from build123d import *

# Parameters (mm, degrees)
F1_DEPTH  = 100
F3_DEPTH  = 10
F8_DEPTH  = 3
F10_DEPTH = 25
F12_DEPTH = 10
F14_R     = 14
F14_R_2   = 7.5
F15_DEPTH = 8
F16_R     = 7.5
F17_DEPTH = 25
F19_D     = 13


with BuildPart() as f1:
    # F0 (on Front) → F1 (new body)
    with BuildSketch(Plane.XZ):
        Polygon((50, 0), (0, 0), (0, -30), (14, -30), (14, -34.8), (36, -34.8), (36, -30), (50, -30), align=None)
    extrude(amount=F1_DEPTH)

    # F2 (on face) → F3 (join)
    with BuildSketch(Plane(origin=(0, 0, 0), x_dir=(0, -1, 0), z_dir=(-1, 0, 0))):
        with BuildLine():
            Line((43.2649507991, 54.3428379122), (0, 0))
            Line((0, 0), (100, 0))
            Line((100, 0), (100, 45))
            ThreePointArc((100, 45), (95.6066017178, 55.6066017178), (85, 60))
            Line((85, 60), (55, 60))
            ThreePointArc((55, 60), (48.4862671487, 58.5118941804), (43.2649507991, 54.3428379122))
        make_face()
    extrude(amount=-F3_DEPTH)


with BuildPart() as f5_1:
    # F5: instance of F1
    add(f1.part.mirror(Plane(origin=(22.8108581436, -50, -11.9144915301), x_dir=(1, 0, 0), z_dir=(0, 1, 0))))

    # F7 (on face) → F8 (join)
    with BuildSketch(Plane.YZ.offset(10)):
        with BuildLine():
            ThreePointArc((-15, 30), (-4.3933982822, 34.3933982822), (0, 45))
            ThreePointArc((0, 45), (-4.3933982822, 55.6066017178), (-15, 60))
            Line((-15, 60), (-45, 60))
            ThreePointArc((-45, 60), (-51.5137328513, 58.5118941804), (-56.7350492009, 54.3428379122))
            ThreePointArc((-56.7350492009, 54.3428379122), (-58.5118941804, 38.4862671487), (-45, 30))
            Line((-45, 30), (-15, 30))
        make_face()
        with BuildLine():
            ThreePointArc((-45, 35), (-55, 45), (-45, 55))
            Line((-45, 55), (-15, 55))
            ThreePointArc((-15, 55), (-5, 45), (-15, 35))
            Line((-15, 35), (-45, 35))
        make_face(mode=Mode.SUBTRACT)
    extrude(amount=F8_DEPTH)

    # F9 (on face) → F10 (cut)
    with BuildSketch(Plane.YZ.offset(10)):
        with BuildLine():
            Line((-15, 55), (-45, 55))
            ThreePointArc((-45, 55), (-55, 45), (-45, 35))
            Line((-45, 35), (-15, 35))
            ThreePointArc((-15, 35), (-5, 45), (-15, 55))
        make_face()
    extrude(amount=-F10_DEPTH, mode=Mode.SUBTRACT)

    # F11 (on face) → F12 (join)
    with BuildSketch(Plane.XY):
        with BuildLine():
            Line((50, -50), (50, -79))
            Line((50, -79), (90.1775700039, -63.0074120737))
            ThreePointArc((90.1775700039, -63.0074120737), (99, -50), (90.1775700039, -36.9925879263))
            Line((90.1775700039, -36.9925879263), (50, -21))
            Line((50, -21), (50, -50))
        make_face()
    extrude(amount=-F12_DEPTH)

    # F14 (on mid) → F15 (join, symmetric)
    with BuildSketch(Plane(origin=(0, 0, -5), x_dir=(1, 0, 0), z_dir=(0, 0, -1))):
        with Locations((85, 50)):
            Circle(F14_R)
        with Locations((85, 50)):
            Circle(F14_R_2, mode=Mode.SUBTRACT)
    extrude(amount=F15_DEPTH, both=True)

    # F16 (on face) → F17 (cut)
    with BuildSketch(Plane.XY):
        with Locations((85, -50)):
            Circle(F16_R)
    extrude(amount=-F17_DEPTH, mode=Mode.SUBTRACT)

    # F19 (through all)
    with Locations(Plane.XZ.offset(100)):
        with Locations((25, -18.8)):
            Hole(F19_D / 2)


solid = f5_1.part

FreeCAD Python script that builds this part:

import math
import FreeCAD as App
import Part
import Sketcher
Q = App.Units.Quantity


def add_polygon(sketch, points):
    """Adds a closed chain of lines whose ends are joined by coincident constraints."""
    first, n = sketch.GeometryCount, len(points)
    for a, b in zip(points, points[1:] + points[:1]):
        sketch.addGeometry(Part.LineSegment(App.Vector(*a, 0), App.Vector(*b, 0)), False)
    for i in range(n):
        sketch.addConstraint(Sketcher.Constraint("Coincident", first + i, 2, first + (i + 1) % n, 1))

doc = App.newDocument("Part")
body = doc.addObject("PartDesign::Body", "Body")

sketch1 = doc.addObject("Sketcher::SketchObject", "Sketch")
body.addObject(sketch1)
sketch1.AttachmentSupport = (doc.XZ_Plane, [""])
sketch1.MapMode = "FlatFace"
add_polygon(sketch1, [(50, 0), (0, 0), (0, -30), (14, -30), (14, -34.8), (36, -34.8), (36, -30), (50, -30)])
sketch1.addConstraint([
    Sketcher.Constraint("Horizontal", 0),
    Sketcher.Constraint("Vertical", 1),
    Sketcher.Constraint("Horizontal", 2),
    Sketcher.Constraint("Vertical", 3),
    Sketcher.Constraint("Horizontal", 4),
    Sketcher.Constraint("Vertical", 5),
    Sketcher.Constraint("Horizontal", 6),
    Sketcher.Constraint("Vertical", 7),
    Sketcher.Constraint("Coincident", 0, 2, -1, 1),
    Sketcher.Constraint("Horizontal", 2, 2, 5, 2),
    Sketcher.Constraint("Equal", 2, 6),
    Sketcher.Constraint("DistanceX", 0, 2, 0, 1, Q("50 mm")),
    Sketcher.Constraint("DistanceX", 2, 1, 2, 2, Q("14 mm")),
    Sketcher.Constraint("DistanceY", 1, 2, 1, 1, Q("30 mm")),
    Sketcher.Constraint("DistanceY", 3, 2, 3, 1, Q("4.8 mm")),
])
pad1 = doc.addObject("PartDesign::Pad", "Pad")
body.addObject(pad1)
pad1.Profile = sketch1
pad1.Length = 100

sketch2 = doc.addObject("Sketcher::SketchObject", "Sketch001")
body.addObject(sketch2)
sketch2.AttachmentSupport = (doc.YZ_Plane, [""])
sketch2.MapMode = "FlatFace"
sketch2.addGeometry([
    Part.LineSegment(App.Vector(-43, 54, 0), App.Vector(0, 0, 0)),
    Part.LineSegment(App.Vector(0, 0, 0), App.Vector(-100, 0, 0)),
    Part.LineSegment(App.Vector(-100, 0, 0), App.Vector(-100, 45, 0)),
    Part.ArcOfCircle(Part.Circle(App.Vector(-85, 45, 0), App.Vector(0, 0, 1), 15), math.radians(90), math.radians(180)),
    Part.LineSegment(App.Vector(-85, 60, 0), App.Vector(-55, 60, 0)),
    Part.ArcOfCircle(Part.Circle(App.Vector(-55, 45, 0), App.Vector(0, 0, 1), 15), math.radians(39), math.radians(90)),
], False)
sketch2.addConstraint([
    Sketcher.Constraint("Coincident", 0, 2, 1, 1),
    Sketcher.Constraint("Coincident", 1, 2, 2, 1),
    Sketcher.Constraint("Tangent", 2, 2, 3, 2),
    Sketcher.Constraint("Tangent", 3, 1, 4, 1),
    Sketcher.Constraint("Tangent", 4, 2, 5, 2),
    Sketcher.Constraint("Tangent", 5, 1, 0, 1),
    Sketcher.Constraint("Horizontal", 1),
    Sketcher.Constraint("Vertical", 2),
    Sketcher.Constraint("Horizontal", 4),
    Sketcher.Constraint("Coincident", 0, 2, -1, 1),
    Sketcher.Constraint("Equal", 3, 5),
    Sketcher.Constraint("Radius", 3, Q("15 mm")),
    Sketcher.Constraint("DistanceX", 1, 2, 1, 1, Q("100 mm")),
    Sketcher.Constraint("DistanceX", 4, 1, 4, 2, Q("30 mm")),
    Sketcher.Constraint("DistanceY", 2, 1, 2, 2, Q("45 mm")),
])
pad2 = doc.addObject("PartDesign::Pad", "Pad001")
body.addObject(pad2)
pad2.Profile = sketch2
pad2.Length = 10
body2 = doc.addObject("PartDesign::Body", "Body001")
doc.recompute()

mirroring = doc.addObject("Part::Mirroring", "Mirroring")
mirroring.Source = body
mirroring.Base = App.Vector(22.810858, -50, -11.914492)
mirroring.Normal = App.Vector(0, 1, 0)
body2.BaseFeature = mirroring
doc.recompute()

sketch3 = doc.addObject("Sketcher::SketchObject", "Sketch002")
body2.addObject(sketch3)
sketch3.AttachmentSupport = (doc.getObject("YZ_Plane001"), [""])
sketch3.MapMode = "FlatFace"
sketch3.AttachmentOffset = App.Placement(App.Vector(0, 0, 10), App.Rotation())
sketch3.addGeometry([
    Part.ArcOfCircle(Part.Circle(App.Vector(-15, 45, 0), App.Vector(0, 0, 1), 15), math.radians(-90), math.radians(90)),
    Part.LineSegment(App.Vector(-15, 60, 0), App.Vector(-45, 60, 0)),
    Part.ArcOfCircle(Part.Circle(App.Vector(-45, 45, 0), App.Vector(0, 0, 1), 15), math.radians(90), math.radians(141)),
    Part.ArcOfCircle(Part.Circle(App.Vector(-45, 45, 0), App.Vector(0, 0, 1), 15), math.radians(141), math.radians(270)),
    Part.LineSegment(App.Vector(-45, 30, 0), App.Vector(-15, 30, 0)),
    Part.LineSegment(App.Vector(-15, 35, 0), App.Vector(-45, 35, 0)),
    Part.ArcOfCircle(Part.Circle(App.Vector(-45, 45, 0), App.Vector(0, 0, 1), 10), math.radians(90), math.radians(270)),
    Part.LineSegment(App.Vector(-45, 55, 0), App.Vector(-15, 55, 0)),
    Part.ArcOfCircle(Part.Circle(App.Vector(-15, 45, 0), App.Vector(0, 0, 1), 10), math.radians(-90), math.radians(90)),
], False)
sketch3.addConstraint([
    Sketcher.Constraint("Tangent", 0, 2, 1, 1),
    Sketcher.Constraint("Tangent", 1, 2, 2, 1),
    Sketcher.Constraint("Tangent", 2, 2, 3, 1),
    Sketcher.Constraint("Tangent", 3, 2, 4, 1),
    Sketcher.Constraint("Tangent", 4, 2, 0, 1),
    Sketcher.Constraint("Tangent", 5, 2, 6, 2),
    Sketcher.Constraint("Tangent", 6, 1, 7, 1),
    Sketcher.Constraint("Tangent", 7, 2, 8, 2),
    Sketcher.Constraint("Tangent", 8, 1, 5, 1),
    Sketcher.Constraint("Horizontal", 1),
    Sketcher.Constraint("Horizontal", 4),
    Sketcher.Constraint("Horizontal", 5),
    Sketcher.Constraint("Horizontal", 7),
    Sketcher.Constraint("Coincident", 6, 3, 2, 3),
    Sketcher.Constraint("Coincident", 8, 3, 0, 3),
    Sketcher.Constraint("Radius", 0, Q("15 mm")),
    Sketcher.Constraint("Radius", 6, Q("10 mm")),
    Sketcher.Constraint("DistanceX", 1, 2, 1, 1, Q("30 mm")),
    Sketcher.Constraint("DistanceX", 0, 3, -1, 1, Q("15 mm")),
    Sketcher.Constraint("DistanceY", -1, 1, 0, 3, Q("45 mm")),
    Sketcher.Constraint("DistanceX", 2, 2, -1, 1, Q("56.735049 mm")),
])
pad3 = doc.addObject("PartDesign::Pad", "Pad002")
body2.addObject(pad3)
pad3.Profile = sketch3
pad3.Length = 3

sketch4 = doc.addObject("Sketcher::SketchObject", "Sketch003")
body2.addObject(sketch4)
sketch4.AttachmentSupport = (doc.getObject("YZ_Plane001"), [""])
sketch4.MapMode = "FlatFace"
sketch4.AttachmentOffset = App.Placement(App.Vector(0, 0, 10), App.Rotation())
sketch4.addGeometry([
    Part.LineSegment(App.Vector(-15, 55, 0), App.Vector(-45, 55, 0)),
    Part.ArcOfCircle(Part.Circle(App.Vector(-45, 45, 0), App.Vector(0, 0, 1), 10), math.radians(90), math.radians(270)),
    Part.LineSegment(App.Vector(-45, 35, 0), App.Vector(-15, 35, 0)),
    Part.ArcOfCircle(Part.Circle(App.Vector(-15, 45, 0), App.Vector(0, 0, 1), 10), math.radians(-90), math.radians(90)),
], False)
sketch4.addConstraint([
    Sketcher.Constraint("Tangent", 0, 2, 1, 1),
    Sketcher.Constraint("Tangent", 1, 2, 2, 1),
    Sketcher.Constraint("Tangent", 2, 2, 3, 1),
    Sketcher.Constraint("Tangent", 3, 2, 0, 1),
    Sketcher.Constraint("Horizontal", 0),
    Sketcher.Constraint("Horizontal", 2),
    Sketcher.Constraint("Radius", 1, Q("10 mm")),
    Sketcher.Constraint("DistanceX", 0, 2, 0, 1, Q("30 mm")),
    Sketcher.Constraint("DistanceX", 1, 3, -1, 1, Q("45 mm")),
    Sketcher.Constraint("DistanceY", -1, 1, 1, 3, Q("45 mm")),
])
pocket1 = doc.addObject("PartDesign::Pocket", "Pocket")
body2.addObject(pocket1)
pocket1.Profile = sketch4
pocket1.Length = 25

sketch5 = doc.addObject("Sketcher::SketchObject", "Sketch004")
body2.addObject(sketch5)
sketch5.AttachmentSupport = (doc.getObject("XY_Plane001"), [""])
sketch5.MapMode = "FlatFace"
sketch5.addGeometry([
    Part.LineSegment(App.Vector(50, -79, 0), App.Vector(90, -63, 0)),
    Part.ArcOfCircle(Part.Circle(App.Vector(85, -50, 0), App.Vector(0, 0, 1), 14), math.radians(-68), math.radians(68)),
    Part.LineSegment(App.Vector(90, -37, 0), App.Vector(50, -21, 0)),
    Part.LineSegment(App.Vector(50, -21, 0), App.Vector(50, -79, 0)),
], False)
sketch5.addConstraint([
    Sketcher.Constraint("Tangent", 0, 2, 1, 1),
    Sketcher.Constraint("Tangent", 1, 2, 2, 1),
    Sketcher.Constraint("Coincident", 2, 2, 3, 1),
    Sketcher.Constraint("Coincident", 3, 2, 0, 1),
    Sketcher.Constraint("Vertical", 3),
    Sketcher.Constraint("Vertical", 0, 2, 1, 2),
    Sketcher.Constraint("Radius", 1, Q("14 mm")),
    Sketcher.Constraint("DistanceY", 3, 2, 3, 1, Q("58 mm")),
    Sketcher.Constraint("DistanceX", -1, 1, 1, 3, Q("85 mm")),
    Sketcher.Constraint("DistanceY", 1, 3, -1, 1, Q("50 mm")),
    Sketcher.Constraint("DistanceX", -1, 1, 2, 2, Q("50 mm")),
])
pad4 = doc.addObject("PartDesign::Pad", "Pad003")
body2.addObject(pad4)
pad4.Profile = sketch5
pad4.Length = 10
pad4.Reversed = True

sketch6 = doc.addObject("Sketcher::SketchObject", "Sketch005")
body2.addObject(sketch6)
sketch6.AttachmentSupport = (doc.getObject("XY_Plane001"), [""])
sketch6.MapMode = "FlatFace"
sketch6.AttachmentOffset = App.Placement(App.Vector(0, 0, -5), App.Rotation())
sketch6.addGeometry([
    Part.Circle(App.Vector(85, -50, 0), App.Vector(0, 0, 1), 14),
    Part.Circle(App.Vector(85, -50, 0), App.Vector(0, 0, 1), 8),
], False)
sketch6.addConstraint([
    Sketcher.Constraint("Coincident", 1, 3, 0, 3),
    Sketcher.Constraint("Diameter", 0, Q("28 mm")),
    Sketcher.Constraint("Diameter", 1, Q("15 mm")),
    Sketcher.Constraint("DistanceX", -1, 1, 0, 3, Q("85 mm")),
    Sketcher.Constraint("DistanceY", 0, 3, -1, 1, Q("50 mm")),
])
pad5 = doc.addObject("PartDesign::Pad", "Pad004")
body2.addObject(pad5)
pad5.Profile = sketch6
pad5.Length = 16
pad5.Midplane = True

sketch7 = doc.addObject("Sketcher::SketchObject", "Sketch006")
body2.addObject(sketch7)
sketch7.AttachmentSupport = (doc.getObject("XY_Plane001"), [""])
sketch7.MapMode = "FlatFace"
sketch7.addGeometry(Part.Circle(App.Vector(85, -50, 0), App.Vector(0, 0, 1), 8), False)
sketch7.addConstraint([
    Sketcher.Constraint("Diameter", 0, Q("15 mm")),
    Sketcher.Constraint("DistanceX", -1, 1, 0, 3, Q("85 mm")),
    Sketcher.Constraint("DistanceY", 0, 3, -1, 1, Q("50 mm")),
])
pocket2 = doc.addObject("PartDesign::Pocket", "Pocket001")
body2.addObject(pocket2)
pocket2.Profile = sketch7
pocket2.Length = 25

sketch8 = doc.addObject("Sketcher::SketchObject", "Sketch007")
body2.addObject(sketch8)
sketch8.AttachmentSupport = (doc.getObject("XZ_Plane001"), [""])
sketch8.MapMode = "FlatFace"
sketch8.AttachmentOffset = App.Placement(App.Vector(0, 0, 100), App.Rotation())
sketch8.addGeometry(Part.Circle(App.Vector(25, -19, 0), App.Vector(0, 0, 1), 6), False)
sketch8.addConstraint([
    Sketcher.Constraint("Diameter", 0, Q("13 mm")),
    Sketcher.Constraint("DistanceX", -1, 1, 0, 3, Q("25 mm")),
    Sketcher.Constraint("DistanceY", 0, 3, -1, 1, Q("18.8 mm")),
])
doc.recompute()
hole = doc.addObject("PartDesign::Hole", "Hole")
body2.addObject(hole)
hole.Profile = sketch8
hole.ThreadType = "None"
hole.Diameter = 13
hole.DepthType = "ThroughAll"
body.Visibility = False
mirroring.Visibility = False

doc.recompute()
